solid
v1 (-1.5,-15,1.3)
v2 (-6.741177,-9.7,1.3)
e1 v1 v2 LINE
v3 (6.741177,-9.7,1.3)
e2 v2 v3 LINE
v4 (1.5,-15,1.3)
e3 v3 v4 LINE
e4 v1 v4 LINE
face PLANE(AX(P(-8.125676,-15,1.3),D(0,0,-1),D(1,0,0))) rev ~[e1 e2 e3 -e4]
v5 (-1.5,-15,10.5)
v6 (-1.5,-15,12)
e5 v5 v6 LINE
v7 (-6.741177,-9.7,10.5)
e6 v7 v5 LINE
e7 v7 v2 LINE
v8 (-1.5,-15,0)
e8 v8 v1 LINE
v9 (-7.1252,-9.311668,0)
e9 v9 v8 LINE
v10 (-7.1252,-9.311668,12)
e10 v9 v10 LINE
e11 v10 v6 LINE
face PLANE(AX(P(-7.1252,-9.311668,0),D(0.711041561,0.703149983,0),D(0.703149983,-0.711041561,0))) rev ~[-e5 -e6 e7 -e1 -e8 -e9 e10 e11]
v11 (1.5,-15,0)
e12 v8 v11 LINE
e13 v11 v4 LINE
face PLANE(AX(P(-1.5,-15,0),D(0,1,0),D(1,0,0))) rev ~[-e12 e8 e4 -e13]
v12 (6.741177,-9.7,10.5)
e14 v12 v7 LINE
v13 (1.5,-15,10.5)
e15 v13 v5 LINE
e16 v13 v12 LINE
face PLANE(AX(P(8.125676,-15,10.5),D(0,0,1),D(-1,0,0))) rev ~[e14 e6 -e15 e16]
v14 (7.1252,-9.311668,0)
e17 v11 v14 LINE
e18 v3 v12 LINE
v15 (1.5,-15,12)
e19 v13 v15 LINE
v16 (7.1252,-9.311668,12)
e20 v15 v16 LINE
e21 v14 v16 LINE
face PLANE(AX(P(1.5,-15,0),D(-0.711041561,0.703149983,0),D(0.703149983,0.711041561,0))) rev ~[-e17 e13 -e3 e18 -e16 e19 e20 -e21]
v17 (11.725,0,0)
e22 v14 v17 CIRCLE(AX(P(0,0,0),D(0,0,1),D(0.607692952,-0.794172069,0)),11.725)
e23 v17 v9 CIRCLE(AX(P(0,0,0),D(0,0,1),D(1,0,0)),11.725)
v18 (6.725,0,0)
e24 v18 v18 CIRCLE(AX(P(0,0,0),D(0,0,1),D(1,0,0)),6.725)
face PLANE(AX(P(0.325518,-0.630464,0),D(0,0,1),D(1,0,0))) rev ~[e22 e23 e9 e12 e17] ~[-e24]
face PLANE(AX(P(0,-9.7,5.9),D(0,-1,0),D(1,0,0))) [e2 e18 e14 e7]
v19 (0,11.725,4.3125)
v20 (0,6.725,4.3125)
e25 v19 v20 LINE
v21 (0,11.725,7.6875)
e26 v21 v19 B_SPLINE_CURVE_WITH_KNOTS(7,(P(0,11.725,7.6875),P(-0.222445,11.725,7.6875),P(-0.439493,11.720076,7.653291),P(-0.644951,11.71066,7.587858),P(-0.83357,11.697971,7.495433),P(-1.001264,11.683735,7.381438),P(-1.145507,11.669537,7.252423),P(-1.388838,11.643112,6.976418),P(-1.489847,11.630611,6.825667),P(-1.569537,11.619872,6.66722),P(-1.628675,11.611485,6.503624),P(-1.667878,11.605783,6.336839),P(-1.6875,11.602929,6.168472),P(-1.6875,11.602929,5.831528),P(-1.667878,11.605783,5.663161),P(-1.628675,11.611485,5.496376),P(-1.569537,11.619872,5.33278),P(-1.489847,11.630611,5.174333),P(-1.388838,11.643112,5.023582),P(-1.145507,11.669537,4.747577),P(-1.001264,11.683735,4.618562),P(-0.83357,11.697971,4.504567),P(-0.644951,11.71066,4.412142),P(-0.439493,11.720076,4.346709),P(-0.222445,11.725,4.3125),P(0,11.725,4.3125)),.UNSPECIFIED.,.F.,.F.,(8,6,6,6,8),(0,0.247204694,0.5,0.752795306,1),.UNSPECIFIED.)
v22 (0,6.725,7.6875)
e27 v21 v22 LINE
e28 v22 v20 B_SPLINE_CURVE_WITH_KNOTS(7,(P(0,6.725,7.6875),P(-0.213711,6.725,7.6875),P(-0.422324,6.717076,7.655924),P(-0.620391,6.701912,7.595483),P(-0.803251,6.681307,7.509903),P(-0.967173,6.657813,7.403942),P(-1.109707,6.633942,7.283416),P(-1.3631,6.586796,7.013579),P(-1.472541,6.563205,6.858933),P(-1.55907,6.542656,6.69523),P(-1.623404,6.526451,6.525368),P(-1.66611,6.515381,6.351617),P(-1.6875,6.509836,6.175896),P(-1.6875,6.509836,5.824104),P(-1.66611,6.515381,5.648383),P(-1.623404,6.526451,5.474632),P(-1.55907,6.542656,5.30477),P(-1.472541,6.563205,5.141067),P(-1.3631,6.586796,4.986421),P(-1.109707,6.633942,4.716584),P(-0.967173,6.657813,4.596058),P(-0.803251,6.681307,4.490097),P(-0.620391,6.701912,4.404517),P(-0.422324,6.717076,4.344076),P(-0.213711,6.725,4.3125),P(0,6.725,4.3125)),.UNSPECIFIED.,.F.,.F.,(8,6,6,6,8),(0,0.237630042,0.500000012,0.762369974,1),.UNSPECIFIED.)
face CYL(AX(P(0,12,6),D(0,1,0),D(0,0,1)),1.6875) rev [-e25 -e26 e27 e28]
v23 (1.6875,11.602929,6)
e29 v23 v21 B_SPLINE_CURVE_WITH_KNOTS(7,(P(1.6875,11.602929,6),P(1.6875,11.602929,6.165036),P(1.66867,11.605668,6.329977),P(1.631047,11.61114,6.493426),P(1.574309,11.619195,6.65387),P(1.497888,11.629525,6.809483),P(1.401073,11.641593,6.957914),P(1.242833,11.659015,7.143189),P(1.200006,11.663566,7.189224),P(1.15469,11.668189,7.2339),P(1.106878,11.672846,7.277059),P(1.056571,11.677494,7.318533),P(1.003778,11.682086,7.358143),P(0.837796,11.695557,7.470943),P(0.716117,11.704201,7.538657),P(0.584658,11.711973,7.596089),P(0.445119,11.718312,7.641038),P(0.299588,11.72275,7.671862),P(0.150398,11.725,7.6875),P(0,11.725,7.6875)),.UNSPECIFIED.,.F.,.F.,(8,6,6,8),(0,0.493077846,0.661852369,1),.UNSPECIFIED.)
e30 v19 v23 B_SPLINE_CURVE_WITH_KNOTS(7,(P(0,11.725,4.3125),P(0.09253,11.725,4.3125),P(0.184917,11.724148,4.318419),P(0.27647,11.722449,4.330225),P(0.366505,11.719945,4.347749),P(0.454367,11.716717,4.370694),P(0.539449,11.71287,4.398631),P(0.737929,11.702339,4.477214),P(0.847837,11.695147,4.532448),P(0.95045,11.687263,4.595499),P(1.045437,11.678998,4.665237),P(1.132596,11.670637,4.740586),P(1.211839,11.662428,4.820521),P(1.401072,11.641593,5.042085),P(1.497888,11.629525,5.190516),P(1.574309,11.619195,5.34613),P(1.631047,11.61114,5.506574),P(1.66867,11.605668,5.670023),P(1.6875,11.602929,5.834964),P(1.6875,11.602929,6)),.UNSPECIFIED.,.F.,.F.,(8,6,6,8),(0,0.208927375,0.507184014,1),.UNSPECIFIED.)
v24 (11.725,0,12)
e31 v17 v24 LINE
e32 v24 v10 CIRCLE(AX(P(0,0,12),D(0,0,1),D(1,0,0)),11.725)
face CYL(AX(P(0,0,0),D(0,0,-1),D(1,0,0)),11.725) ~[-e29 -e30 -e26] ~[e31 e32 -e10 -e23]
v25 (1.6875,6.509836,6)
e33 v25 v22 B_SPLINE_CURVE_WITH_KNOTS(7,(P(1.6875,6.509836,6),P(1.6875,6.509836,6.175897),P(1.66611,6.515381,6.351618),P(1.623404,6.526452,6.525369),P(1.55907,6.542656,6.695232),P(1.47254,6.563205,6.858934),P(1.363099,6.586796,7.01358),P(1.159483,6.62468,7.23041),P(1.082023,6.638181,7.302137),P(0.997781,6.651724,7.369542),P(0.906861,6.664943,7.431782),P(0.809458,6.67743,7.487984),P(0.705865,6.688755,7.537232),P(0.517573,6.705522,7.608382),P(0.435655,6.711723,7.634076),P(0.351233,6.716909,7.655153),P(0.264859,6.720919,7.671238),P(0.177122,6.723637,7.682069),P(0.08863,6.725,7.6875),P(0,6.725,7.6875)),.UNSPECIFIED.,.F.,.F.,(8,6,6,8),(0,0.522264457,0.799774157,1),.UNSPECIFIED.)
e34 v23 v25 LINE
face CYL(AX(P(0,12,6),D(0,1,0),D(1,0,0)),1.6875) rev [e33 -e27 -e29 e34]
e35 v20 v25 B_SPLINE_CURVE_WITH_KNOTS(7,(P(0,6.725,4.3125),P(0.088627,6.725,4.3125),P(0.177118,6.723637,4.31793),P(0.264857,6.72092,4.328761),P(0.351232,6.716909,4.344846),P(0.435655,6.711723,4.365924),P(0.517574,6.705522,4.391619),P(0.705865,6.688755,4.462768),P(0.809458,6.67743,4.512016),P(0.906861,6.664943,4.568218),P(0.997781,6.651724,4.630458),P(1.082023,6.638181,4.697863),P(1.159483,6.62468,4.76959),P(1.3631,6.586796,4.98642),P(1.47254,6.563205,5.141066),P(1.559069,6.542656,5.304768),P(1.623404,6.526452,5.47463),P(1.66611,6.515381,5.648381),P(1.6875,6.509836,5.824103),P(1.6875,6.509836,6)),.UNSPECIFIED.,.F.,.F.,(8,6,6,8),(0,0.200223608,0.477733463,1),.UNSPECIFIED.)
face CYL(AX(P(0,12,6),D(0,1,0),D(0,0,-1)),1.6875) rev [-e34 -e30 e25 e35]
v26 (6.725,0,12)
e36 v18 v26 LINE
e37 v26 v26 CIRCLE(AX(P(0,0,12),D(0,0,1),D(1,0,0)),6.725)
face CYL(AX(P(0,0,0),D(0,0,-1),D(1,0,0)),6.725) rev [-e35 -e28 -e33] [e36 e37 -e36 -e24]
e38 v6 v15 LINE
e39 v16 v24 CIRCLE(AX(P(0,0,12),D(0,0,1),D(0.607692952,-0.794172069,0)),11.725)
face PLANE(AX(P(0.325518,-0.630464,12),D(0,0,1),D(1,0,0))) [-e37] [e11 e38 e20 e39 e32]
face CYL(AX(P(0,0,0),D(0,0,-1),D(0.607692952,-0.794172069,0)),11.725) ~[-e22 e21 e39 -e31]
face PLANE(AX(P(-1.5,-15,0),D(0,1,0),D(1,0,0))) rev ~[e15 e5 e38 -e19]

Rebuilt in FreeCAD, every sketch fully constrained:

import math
import FreeCAD as App
import Part
import Sketcher

V = App.Vector
Q = App.Units.Quantity


def add_polygon(sketch, points):
    """Adds a closed chain of lines whose ends are joined by coincident constraints."""
    first, n = sketch.GeometryCount, len(points)
    for a, b in zip(points, points[1:] + points[:1]):
        sketch.addGeometry(Part.LineSegment(App.Vector(*a, 0), App.Vector(*b, 0)), False)
    for i in range(n):
        sketch.addConstraint(Sketcher.Constraint("Coincident", first + i, 2, first + (i + 1) % n, 1))

doc = App.newDocument("Part")
body = doc.addObject("PartDesign::Body", "Body")

# Sketch on XY plane
sketch1 = body.newObject("Sketcher::SketchObject", "Sketch")
sketch1.AttachmentSupport = (doc.getObject("XY_Plane"), [""])
sketch1.MapMode = "FlatFace"
sketch1.addGeometry([
    Part.ArcOfCircle(Part.Circle(V(0, 0, 0), V(0, 0, 1), 11.725), math.radians(-52.577125), math.radians(0)),  # 0
    Part.ArcOfCircle(Part.Circle(V(0, 0, 0), V(0, 0, 1), 11.725), math.radians(0), math.radians(232.577125)),  # 1
    Part.LineSegment(V(-7.1252, -9.311668, 0), V(-1.5, -15, 0)),  # 2
    Part.LineSegment(V(-1.5, -15, 0), V(1.5, -15, 0)),  # 3
    Part.LineSegment(V(1.5, -15, 0), V(7.1252, -9.311668, 0)),  # 4
    Part.Circle(V(0, 0, 0), V(0, 0, 1), 6.725),  # 5
], False)
sketch1.addConstraint([
    Sketcher.Constraint("Tangent", 0, 2, 1, 1),
    Sketcher.Constraint("Coincident", 1, 2, 2, 1),
    Sketcher.Constraint("Coincident", 2, 2, 3, 1),
    Sketcher.Constraint("Coincident", 3, 2, 4, 1),
    Sketcher.Constraint("Coincident", 4, 2, 0, 1),
    Sketcher.Constraint("Horizontal", 3),
    Sketcher.Constraint("Coincident", 0, 3, -1, 1),
    Sketcher.Constraint("Coincident", 5, 3, -1, 1),
    Sketcher.Constraint("Equal", 0, 1),
    Sketcher.Constraint("PointOnObject", 0, 2, -1),
    Sketcher.Constraint("Horizontal", 1, 2, 4, 2),
    Sketcher.Constraint("Equal", 2, 4),
    Sketcher.Constraint("Diameter", 5, Q("13.45 mm")),
    Sketcher.Constraint("DistanceX", 3, 1, 3, 2, Q("3 mm")),
    Sketcher.Constraint("Distance", 2, Q("8 mm")),
    Sketcher.Constraint("DistanceY", 2, 2, -1, 1, Q("15 mm")),
    Sketcher.Constraint("Radius", 0, Q("11.725 mm")),
])
pad1 = body.newObject("PartDesign::Pad", "Pad")
pad1.Profile = sketch1
pad1.Length = 12

# Sketch on XZ plane
sketch2 = body.newObject("Sketcher::SketchObject", "Sketch001")
sketch2.AttachmentSupport = (doc.getObject("XZ_Plane"), [""])
sketch2.MapMode = "FlatFace"
sketch2.AttachmentOffset = App.Placement(V(0, 0, -12), App.Rotation())
sketch2.addGeometry([
    Part.ArcOfCircle(Part.Circle(V(0, 6, 0), V(0, 0, 1), 1.6875), math.radians(90), math.radians(270)),
    Part.ArcOfCircle(Part.Circle(V(0, 6, 0), V(0, 0, 1), 1.6875), math.radians(-90), math.radians(0)),
    Part.ArcOfCircle(Part.Circle(V(0, 6, 0), V(0, 0, 1), 1.6875), math.radians(0), math.radians(90)),
], False)
sketch2.addConstraint([
    Sketcher.Constraint("Tangent", 0, 2, 1, 1),
    Sketcher.Constraint("Tangent", 1, 2, 2, 1),
    Sketcher.Constraint("Tangent", 2, 2, 0, 1),
    Sketcher.Constraint("PointOnObject", 0, 3, -2),
    Sketcher.Constraint("PointOnObject", 0, 2, -2),
    Sketcher.Constraint("PointOnObject", 2, 2, -2),
    Sketcher.Constraint("Horizontal", 2, 3, 1, 2),
    Sketcher.Constraint("DistanceY", -1, 1, 0, 3, Q("6 mm")),
    Sketcher.Constraint("Radius", 0, Q("1.6875 mm")),
])
pocket1 = body.newObject("PartDesign::Pocket", "Pocket")
pocket1.Profile = sketch2
pocket1.Length = 10
pocket1.Reversed = True

# Sketch on XZ plane
sketch3 = body.newObject("Sketcher::SketchObject", "Sketch002")
sketch3.AttachmentSupport = (doc.getObject("XZ_Plane"), [""])
sketch3.MapMode = "FlatFace"
sketch3.AttachmentOffset = App.Placement(V(0, 0, 15), App.Rotation())
add_polygon(sketch3, [(-8.125676, 10.5), (-8.125676, 1.3), (8.125676, 1.3), (8.125676, 10.5)])  # lines 0-3
sketch3.addConstraint([
    Sketcher.Constraint("Vertical", 0),
    Sketcher.Constraint("Horizontal", 1),
    Sketcher.Constraint("Vertical", 2),
    Sketcher.Constraint("Horizontal", 3),
    Sketcher.Constraint("DistanceY", 0, 2, 0, 1, Q("9.2 mm")),
    Sketcher.Constraint("DistanceY", -1, 1, 0, 2, Q("1.3 mm")),
    Sketcher.Constraint("DistanceX", 1, 1, 1, 2, Q("16.251352 mm")),
    Sketcher.Constraint("DistanceX", 0, 2, -1, 1, Q("8.125676 mm")),
])
pocket2 = body.newObject("PartDesign::Pocket", "Pocket001")
pocket2.Profile = sketch3
pocket2.Length = 5.3

doc.recompute()
